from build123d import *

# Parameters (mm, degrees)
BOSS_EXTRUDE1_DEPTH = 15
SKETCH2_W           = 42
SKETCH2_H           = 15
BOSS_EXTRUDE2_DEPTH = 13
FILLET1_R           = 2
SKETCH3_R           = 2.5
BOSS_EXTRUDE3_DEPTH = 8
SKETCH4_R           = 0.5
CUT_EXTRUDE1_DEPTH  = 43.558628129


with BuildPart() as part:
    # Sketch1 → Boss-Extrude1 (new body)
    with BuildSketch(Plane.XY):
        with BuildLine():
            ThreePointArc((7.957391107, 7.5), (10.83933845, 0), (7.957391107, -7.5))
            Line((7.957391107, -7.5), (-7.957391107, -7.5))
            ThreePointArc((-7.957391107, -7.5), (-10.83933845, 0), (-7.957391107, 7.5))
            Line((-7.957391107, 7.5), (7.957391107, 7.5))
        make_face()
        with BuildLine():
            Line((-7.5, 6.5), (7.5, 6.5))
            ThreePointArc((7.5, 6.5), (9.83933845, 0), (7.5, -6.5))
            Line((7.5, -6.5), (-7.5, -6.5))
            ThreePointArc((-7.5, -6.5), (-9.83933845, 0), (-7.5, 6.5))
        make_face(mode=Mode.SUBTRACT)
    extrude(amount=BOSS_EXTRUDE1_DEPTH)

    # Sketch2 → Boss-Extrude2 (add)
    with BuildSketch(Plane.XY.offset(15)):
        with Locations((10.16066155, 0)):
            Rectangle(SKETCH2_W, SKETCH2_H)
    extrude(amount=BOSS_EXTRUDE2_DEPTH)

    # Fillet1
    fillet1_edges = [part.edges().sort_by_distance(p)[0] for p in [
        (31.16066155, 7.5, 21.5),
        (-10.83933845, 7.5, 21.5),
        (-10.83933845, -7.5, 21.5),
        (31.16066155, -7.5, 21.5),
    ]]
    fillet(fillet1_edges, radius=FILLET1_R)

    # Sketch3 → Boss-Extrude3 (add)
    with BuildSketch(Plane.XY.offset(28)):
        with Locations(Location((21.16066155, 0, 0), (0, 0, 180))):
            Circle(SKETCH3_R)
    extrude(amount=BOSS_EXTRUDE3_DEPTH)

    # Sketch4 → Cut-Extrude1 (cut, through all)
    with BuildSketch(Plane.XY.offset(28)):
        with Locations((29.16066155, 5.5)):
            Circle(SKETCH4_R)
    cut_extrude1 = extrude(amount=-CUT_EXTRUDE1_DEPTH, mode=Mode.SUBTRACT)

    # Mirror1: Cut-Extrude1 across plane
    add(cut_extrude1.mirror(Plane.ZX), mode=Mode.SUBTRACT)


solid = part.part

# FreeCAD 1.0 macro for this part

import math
import FreeCAD as App
import Part
import Sketcher
from FreeCAD import Vector


def edges_at(feature, points):
    """Names of the edges that pass closest to the given points."""
    edges = feature.Shape.Edges
    near = lambda p: min(range(len(edges)), key=lambda i: edges[i].distToShape(Part.Vertex(*p))[0])
    return sorted({f"Edge{near(p) + 1}" for p in points})


def add_polygon(sketch, points):
    """Adds a closed chain of lines whose ends are joined by coincident constraints."""
    first, n = sketch.GeometryCount, len(points)
    for a, b in zip(points, points[1:] + points[:1]):
        sketch.addGeometry(Part.LineSegment(App.Vector(*a, 0), App.Vector(*b, 0)), False)
    for i in range(n):
        sketch.addConstraint(Sketcher.Constraint("Coincident", first + i, 2, first + (i + 1) % n, 1))

doc = App.newDocument("Part")
params = doc.addObject("Spreadsheet::Sheet", "Params")
for row, (alias, value) in enumerate([
    ("sketch1_radius", "11.2 mm"),
    ("sketch1_radius2", "10.2 mm"),
    ("sketch1_width", "15 mm"),
    ("pad1_length", "15 mm"),
    ("sketch2_width", "42 mm"),
    ("sketch2_height", "15 mm"),
    ("pad2_length", "13 mm"),
    ("fillet_radius", "2 mm"),
    ("sketch3_diameter", "5 mm"),
    ("pad3_length", "8 mm"),
    ("sketch4_diameter", "1 mm"),
], start=1):
    params.set(f"A{row}", alias)
    params.set(f"B{row}", "=" + value)
    params.setAlias(f"B{row}", alias)

body = doc.addObject("PartDesign::Body", "Body")

sketch1 = body.newObject("Sketcher::SketchObject", "Sketch")
sketch1.AttachmentSupport = (doc.getObject("XY_Plane"), [""])
sketch1.MapMode = "FlatFace"
sketch1.addGeometry([
    Part.ArcOfCircle(Part.Circle(Vector(-0.360662, 0, 0), Vector(0, 0, 1), 11.2), math.radians(-42.039506), math.radians(42.039506)),
    Part.LineSegment(Vector(7.957391, 7.5, 0), Vector(-7.957391, 7.5, 0)),
    Part.ArcOfCircle(Part.Circle(Vector(0.360662, 0, 0), Vector(0, 0, 1), 11.2), math.radians(137.960494), math.radians(222.039506)),
    Part.LineSegment(Vector(-7.957391, -7.5, 0), Vector(7.957391, -7.5, 0)),
    Part.LineSegment(Vector(-7.5, 6.5, 0), Vector(7.5, 6.5, 0)),
    Part.ArcOfCircle(Part.Circle(Vector(-0.360662, 0, 0), Vector(0, 0, 1), 10.2), math.radians(-39.587428), math.radians(39.587428)),
    Part.LineSegment(Vector(7.5, -6.5, 0), Vector(-7.5, -6.5, 0)),
    Part.ArcOfCircle(Part.Circle(Vector(0.360662, 0, 0), Vector(0, 0, 1), 10.2), math.radians(140.412572), math.radians(219.587428)),
], False)
sketch1.addConstraint([
    Sketcher.Constraint("Coincident", 0, 2, 1, 1),
    Sketcher.Constraint("Coincident", 1, 2, 2, 1),
    Sketcher.Constraint("Coincident", 2, 2, 3, 1),
    Sketcher.Constraint("Coincident", 3, 2, 0, 1),
    Sketcher.Constraint("Coincident", 4, 2, 5, 2),
    Sketcher.Constraint("Coincident", 5, 1, 6, 1),
    Sketcher.Constraint("Coincident", 6, 2, 7, 2),
    Sketcher.Constraint("Coincident", 7, 1, 4, 1),
    Sketcher.Constraint("Horizontal", 1),
    Sketcher.Constraint("Horizontal", 3),
    Sketcher.Constraint("Horizontal", 4),
    Sketcher.Constraint("Horizontal", 6),
    Sketcher.Constraint("Coincident", 5, 3, 0, 3),
    Sketcher.Constraint("Coincident", 7, 3, 2, 3),
    Sketcher.Constraint("Equal", 0, 2),
    Sketcher.Constraint("Equal", 5, 7),
    Sketcher.Constraint("Symmetric", 0, 3, 2, 3, -1, 1),
    Sketcher.Constraint("Symmetric", 1, 2, 2, 2, -1),
    Sketcher.Constraint("Vertical", 4, 2, 5, 1),
    Sketcher.Constraint("Radius", 0, 11.2),
    Sketcher.Constraint("Radius", 5, 10.2),
    Sketcher.Constraint("DistanceX", 4, 1, 4, 2, 15.0),
    Sketcher.Constraint("DistanceY", 2, 2, 1, 2, 15.0),
    Sketcher.Constraint("DistanceY", 4, 2, 0, 2, 1.0),
])
sketch1.setExpression("Constraints[19]", "Params.sketch1_radius")
sketch1.setExpression("Constraints[20]", "Params.sketch1_radius2")
sketch1.setExpression("Constraints[21]", "Params.sketch1_width")
pad1 = body.newObject("PartDesign::Pad", "Pad")
pad1.Profile = sketch1
pad1.setExpression("Length", "Params.pad1_length")

sketch2 = body.newObject("Sketcher::SketchObject", "Sketch001")
sketch2.AttachmentSupport = (doc.getObject("XY_Plane"), [""])
sketch2.MapMode = "FlatFace"
sketch2.AttachmentOffset = App.Placement(Vector(0, 0, 15), App.Rotation())
add_polygon(sketch2, [(-11, 8), (-11, -8), (31, -8), (31, 8)])
sketch2.addConstraint([
    Sketcher.Constraint("Vertical", 0),
    Sketcher.Constraint("Horizontal", 1),
    Sketcher.Constraint("Vertical", 2),
    Sketcher.Constraint("Horizontal", 3),
    Sketcher.Constraint("DistanceX", 1, 1, 1, 2, 42.0),
    Sketcher.Constraint("DistanceY", 0, 2, 0, 1, 15.0),
    Sketcher.Constraint("DistanceY", 0, 2, -1, 1, 7.5),
    Sketcher.Constraint("DistanceX", 0, 2, -1, 1, 10.839338),
])
sketch2.setExpression("Constraints[8]", "Params.sketch2_width")
sketch2.setExpression("Constraints[9]", "Params.sketch2_height")
pad2 = body.newObject("PartDesign::Pad", "Pad001")
pad2.Profile = sketch2
pad2.setExpression("Length", "Params.pad2_length")
doc.recompute()

fillet = body.newObject("PartDesign::Fillet", "Fillet")
fillet.Base = (pad2, edges_at(pad2, [
    (31.161, 7.5, 21.5),
    (-10.839, 7.5, 21.5),
    (-10.839, -7.5, 21.5),
    (31.161, -7.5, 21.5),
]))
fillet.setExpression("Radius", "Params.fillet_radius")

sketch3 = body.newObject("Sketcher::SketchObject", "Sketch002")
sketch3.AttachmentSupport = (doc.getObject("XY_Plane"), [""])
sketch3.MapMode = "FlatFace"
sketch3.AttachmentOffset = App.Placement(Vector(0, 0, 28), App.Rotation())
sketch3.addGeometry(Part.Circle(Vector(21.2, 0, 0), Vector(0, 0, 1), 2.5), False)
sketch3.addConstraint([
    Sketcher.Constraint("PointOnObject", 0, 3, -1),
    Sketcher.Constraint("Diameter", 0, 5.0),
    Sketcher.Constraint("DistanceX", -1, 1, 0, 3, 21.160662),
])
sketch3.setExpression("Constraints[1]", "Params.sketch3_diameter")
pad3 = body.newObject("PartDesign::Pad", "Pad002")
pad3.Profile = sketch3
pad3.setExpression("Length", "Params.pad3_length")

sketch4 = body.newObject("Sketcher::SketchObject", "Sketch003")
sketch4.AttachmentSupport = (doc.getObject("XY_Plane"), [""])
sketch4.MapMode = "FlatFace"
sketch4.AttachmentOffset = App.Placement(Vector(0, 0, 28), App.Rotation())
sketch4.addGeometry(Part.Circle(Vector(29.2, 5.5, 0), Vector(0, 0, 1), 0.5), False)
sketch4.addConstraint([
    Sketcher.Constraint("Diameter", 0, 1.0),
    Sketcher.Constraint("DistanceY", -1, 1, 0, 3, 5.5),
    Sketcher.Constraint("DistanceX", -1, 1, 0, 3, 29.160662),
])
sketch4.setExpression("Constraints[0]", "Params.sketch4_diameter")
pocket1 = body.newObject("PartDesign::Pocket", "Pocket")
pocket1.Profile = sketch4
pocket1.Type = "ThroughAll"
doc.recompute()

mirrored = body.newObject("PartDesign::Mirrored", "Mirrored")
mirrored.Originals = [pocket1]
mirrored.MirrorPlane = (doc.getObject("XZ_Plane"), [""])
body.Tip = mirrored

doc.recompute()
